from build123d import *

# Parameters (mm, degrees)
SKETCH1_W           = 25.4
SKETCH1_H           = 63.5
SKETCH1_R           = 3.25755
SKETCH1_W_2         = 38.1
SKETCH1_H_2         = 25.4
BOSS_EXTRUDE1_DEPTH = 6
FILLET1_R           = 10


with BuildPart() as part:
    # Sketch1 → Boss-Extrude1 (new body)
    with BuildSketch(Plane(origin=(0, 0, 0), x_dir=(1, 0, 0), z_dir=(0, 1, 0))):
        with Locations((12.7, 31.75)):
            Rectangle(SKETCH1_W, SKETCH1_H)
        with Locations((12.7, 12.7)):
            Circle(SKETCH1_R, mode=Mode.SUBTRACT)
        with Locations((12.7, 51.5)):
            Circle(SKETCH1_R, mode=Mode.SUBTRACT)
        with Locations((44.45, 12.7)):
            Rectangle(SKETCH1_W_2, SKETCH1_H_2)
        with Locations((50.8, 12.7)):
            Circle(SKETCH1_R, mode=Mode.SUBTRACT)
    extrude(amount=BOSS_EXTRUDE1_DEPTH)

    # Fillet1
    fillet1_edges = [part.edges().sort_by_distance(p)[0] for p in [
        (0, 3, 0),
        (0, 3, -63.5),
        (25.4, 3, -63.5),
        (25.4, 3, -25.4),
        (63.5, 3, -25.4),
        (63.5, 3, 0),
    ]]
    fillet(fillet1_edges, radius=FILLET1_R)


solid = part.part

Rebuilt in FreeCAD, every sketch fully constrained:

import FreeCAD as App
import Part
import Sketcher
Q = App.Units.Quantity


def edges_at(feature, points):
    """Names of the edges that pass closest to the given points."""
    edges = feature.Shape.Edges
    near = lambda p: min(range(len(edges)), key=lambda i: edges[i].distToShape(Part.Vertex(*p))[0])
    return sorted({f"Edge{near(p) + 1}" for p in points})


def add_polygon(sketch, points):
    """Adds a closed chain of lines whose ends are joined by coincident constraints."""
    first, n = sketch.GeometryCount, len(points)
    for a, b in zip(points, points[1:] + points[:1]):
        sketch.addGeometry(Part.LineSegment(App.Vector(*a, 0), App.Vector(*b, 0)), False)
    for i in range(n):
        sketch.addConstraint(Sketcher.Constraint("Coincident", first + i, 2, first + (i + 1) % n, 1))

doc = App.newDocument("Part")
body = doc.addObject("PartDesign::Body", "Body")

# Sketch on XZ plane
sketch1 = body.newObject("Sketcher::SketchObject", "Sketch")
sketch1.AttachmentSupport = (doc.getObject("XZ_Plane"), [""])
sketch1.MapMode = "FlatFace"
add_polygon(sketch1, [(0, -63.5), (0, 0), (63.5, 0), (63.5, -25.4), (25.4, -25.4), (25.4, -63.5)])  # lines 0-5
sketch1.addGeometry(Part.Circle(App.Vector(12.7, -12.7, 0), App.Vector(0, 0, 1), 3.3), False)  # 6
sketch1.addGeometry(Part.Circle(App.Vector(50.8, -12.7, 0), App.Vector(0, 0, 1), 3.3), False)  # 7
sketch1.addGeometry(Part.Circle(App.Vector(12.7, -51.5, 0), App.Vector(0, 0, 1), 3.3), False)  # 8
sketch1.addConstraint(Sketcher.Constraint("Vertical", 0))
sketch1.addConstraint(Sketcher.Constraint("Horizontal", 1))
sketch1.addConstraint(Sketcher.Constraint("Vertical", 2))
sketch1.addConstraint(Sketcher.Constraint("Horizontal", 3))
sketch1.addConstraint(Sketcher.Constraint("Vertical", 4))
sketch1.addConstraint(Sketcher.Constraint("Horizontal", 5))
sketch1.addConstraint(Sketcher.Constraint("Coincident", 0, 2, -1, 1))
sketch1.addConstraint(Sketcher.Constraint("Equal", 6, 7))
sketch1.addConstraint(Sketcher.Constraint("Equal", 7, 8))
sketch1.addConstraint(Sketcher.Constraint("Horizontal", 6, 3, 7, 3))
sketch1.addConstraint(Sketcher.Constraint("Vertical", 6, 3, 8, 3))
sketch1.addConstraint(Sketcher.Constraint("Equal", 1, 0))
sketch1.addConstraint(Sketcher.Constraint("Equal", 5, 2))
sketch1.addConstraint(Sketcher.Constraint("DistanceX", 5, 2, 5, 1, Q("1 in")))
sketch1.addConstraint(Sketcher.Constraint("DistanceX", 1, 1, 1, 2, Q("2.5 in")))
sketch1.addConstraint(Sketcher.Constraint("DistanceX", -1, 1, 7, 3, Q("2 in")))
sketch1.addConstraint(Sketcher.Constraint("DistanceX", 6, 3, 1, 2, Q("2 in")))
sketch1.addConstraint(Sketcher.Constraint("DistanceY", 4, 2, 6, 3, Q("2 in")))
sketch1.addConstraint(Sketcher.Constraint("Diameter", 6, Q("0.2565 in")))
sketch1.addConstraint(Sketcher.Constraint("DistanceY", 8, 3, -1, 1, 51.5))
pad1 = body.newObject("PartDesign::Pad", "Pad")
pad1.Profile = sketch1
pad1.Length = 6
pad1.Reversed = True
doc.recompute()

fillet = body.newObject("PartDesign::Fillet", "Fillet")
fillet.Base = (pad1, edges_at(pad1, [
    (0, 3, 0),
    (0, 3, -63.5),
    (25.4, 3, -63.5),
    (25.4, 3, -25.4),
    (63.5, 3, -25.4),
    (63.5, 3, 0),
]))
fillet.Radius = 10

doc.recompute()
